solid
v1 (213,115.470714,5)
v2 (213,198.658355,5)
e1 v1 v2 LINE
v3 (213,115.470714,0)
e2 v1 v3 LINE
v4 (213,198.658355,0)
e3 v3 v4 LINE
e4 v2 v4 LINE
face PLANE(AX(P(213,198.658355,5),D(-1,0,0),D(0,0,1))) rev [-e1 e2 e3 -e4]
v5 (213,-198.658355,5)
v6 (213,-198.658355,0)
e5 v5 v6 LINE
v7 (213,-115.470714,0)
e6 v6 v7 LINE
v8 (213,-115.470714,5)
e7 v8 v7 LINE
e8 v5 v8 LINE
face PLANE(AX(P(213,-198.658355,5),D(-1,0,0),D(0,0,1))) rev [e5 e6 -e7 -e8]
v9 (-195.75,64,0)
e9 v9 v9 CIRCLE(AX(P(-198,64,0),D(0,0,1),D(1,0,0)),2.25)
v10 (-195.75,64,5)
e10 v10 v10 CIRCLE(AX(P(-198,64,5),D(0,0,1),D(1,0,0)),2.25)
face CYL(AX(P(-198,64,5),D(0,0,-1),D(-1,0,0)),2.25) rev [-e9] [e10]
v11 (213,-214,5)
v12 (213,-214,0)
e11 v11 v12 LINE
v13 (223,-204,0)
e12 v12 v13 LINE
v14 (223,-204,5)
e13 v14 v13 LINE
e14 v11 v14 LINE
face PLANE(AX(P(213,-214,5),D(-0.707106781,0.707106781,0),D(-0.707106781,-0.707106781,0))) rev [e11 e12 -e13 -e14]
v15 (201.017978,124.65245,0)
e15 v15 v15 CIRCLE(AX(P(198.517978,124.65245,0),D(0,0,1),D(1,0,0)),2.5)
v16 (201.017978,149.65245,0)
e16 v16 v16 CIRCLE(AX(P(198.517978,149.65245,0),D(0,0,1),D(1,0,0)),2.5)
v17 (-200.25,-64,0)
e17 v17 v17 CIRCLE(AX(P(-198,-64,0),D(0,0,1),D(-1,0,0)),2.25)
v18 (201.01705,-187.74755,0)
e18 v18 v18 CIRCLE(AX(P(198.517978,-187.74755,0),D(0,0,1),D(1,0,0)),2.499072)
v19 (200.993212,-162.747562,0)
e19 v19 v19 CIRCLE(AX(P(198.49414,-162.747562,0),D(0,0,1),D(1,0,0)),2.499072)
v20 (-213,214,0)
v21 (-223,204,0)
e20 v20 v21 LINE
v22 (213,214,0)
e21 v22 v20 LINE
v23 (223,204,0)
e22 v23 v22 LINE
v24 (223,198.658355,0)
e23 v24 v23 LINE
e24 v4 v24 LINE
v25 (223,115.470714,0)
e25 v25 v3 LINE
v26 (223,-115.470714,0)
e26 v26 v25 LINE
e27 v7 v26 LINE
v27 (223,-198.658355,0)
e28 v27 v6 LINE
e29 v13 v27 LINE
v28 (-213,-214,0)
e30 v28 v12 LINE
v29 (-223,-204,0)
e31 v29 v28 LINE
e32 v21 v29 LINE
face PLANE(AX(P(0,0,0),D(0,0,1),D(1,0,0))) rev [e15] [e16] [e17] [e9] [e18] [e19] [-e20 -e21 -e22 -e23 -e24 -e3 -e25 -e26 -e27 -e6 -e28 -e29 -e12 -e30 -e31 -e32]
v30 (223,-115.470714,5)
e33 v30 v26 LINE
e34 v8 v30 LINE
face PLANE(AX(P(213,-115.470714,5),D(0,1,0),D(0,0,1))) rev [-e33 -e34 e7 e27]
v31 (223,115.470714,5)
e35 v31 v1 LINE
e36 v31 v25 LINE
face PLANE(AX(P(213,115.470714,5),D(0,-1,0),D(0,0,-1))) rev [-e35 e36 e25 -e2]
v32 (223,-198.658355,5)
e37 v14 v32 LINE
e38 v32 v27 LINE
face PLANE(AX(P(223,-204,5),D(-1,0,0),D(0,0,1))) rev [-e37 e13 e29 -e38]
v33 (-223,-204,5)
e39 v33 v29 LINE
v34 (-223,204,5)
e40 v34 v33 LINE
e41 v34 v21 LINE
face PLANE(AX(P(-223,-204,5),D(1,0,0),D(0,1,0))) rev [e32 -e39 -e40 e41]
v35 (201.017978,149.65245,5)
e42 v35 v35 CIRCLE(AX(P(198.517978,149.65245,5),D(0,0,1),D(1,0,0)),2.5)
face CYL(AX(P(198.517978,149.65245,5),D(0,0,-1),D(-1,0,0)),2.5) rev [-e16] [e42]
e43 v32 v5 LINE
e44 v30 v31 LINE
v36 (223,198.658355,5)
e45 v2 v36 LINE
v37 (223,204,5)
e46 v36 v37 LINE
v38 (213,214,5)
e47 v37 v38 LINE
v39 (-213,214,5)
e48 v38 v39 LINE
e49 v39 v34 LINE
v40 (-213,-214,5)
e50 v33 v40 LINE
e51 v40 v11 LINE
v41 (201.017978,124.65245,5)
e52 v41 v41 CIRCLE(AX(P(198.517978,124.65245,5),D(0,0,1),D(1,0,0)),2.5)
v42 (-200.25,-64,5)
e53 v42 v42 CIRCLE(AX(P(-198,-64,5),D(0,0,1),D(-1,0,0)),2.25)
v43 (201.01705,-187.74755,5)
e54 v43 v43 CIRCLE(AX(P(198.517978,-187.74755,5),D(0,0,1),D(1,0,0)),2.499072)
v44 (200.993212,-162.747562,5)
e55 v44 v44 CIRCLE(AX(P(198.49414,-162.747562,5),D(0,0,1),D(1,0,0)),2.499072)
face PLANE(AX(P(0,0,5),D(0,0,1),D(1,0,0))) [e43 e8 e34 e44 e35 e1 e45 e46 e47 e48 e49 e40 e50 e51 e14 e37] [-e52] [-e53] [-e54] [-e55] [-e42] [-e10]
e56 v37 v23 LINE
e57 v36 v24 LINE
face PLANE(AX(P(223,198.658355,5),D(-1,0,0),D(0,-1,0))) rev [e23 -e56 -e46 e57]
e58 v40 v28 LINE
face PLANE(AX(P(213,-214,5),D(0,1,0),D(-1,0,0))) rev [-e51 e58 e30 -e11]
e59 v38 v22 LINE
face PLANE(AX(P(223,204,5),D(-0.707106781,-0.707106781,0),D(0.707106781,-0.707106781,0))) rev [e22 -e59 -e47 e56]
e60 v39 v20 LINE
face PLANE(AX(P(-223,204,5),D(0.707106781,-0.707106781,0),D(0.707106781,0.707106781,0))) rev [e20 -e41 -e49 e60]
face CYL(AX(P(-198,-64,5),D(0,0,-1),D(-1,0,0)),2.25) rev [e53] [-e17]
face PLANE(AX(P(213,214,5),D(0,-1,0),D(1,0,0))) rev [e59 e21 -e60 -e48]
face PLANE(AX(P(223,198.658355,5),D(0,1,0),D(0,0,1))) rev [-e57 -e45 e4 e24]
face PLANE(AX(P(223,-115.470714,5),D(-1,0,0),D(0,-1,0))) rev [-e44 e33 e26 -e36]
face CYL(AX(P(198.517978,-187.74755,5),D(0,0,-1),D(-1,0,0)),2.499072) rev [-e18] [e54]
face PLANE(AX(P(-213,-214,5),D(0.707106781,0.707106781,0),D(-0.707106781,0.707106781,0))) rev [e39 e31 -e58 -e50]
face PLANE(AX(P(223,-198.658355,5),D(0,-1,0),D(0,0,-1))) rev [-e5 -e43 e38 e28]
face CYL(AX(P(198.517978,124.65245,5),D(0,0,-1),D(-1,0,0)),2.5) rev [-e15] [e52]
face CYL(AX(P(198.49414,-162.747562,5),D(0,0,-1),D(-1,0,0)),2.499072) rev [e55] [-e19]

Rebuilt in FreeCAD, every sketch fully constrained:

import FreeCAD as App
import Part
import Sketcher
Q = App.Units.Quantity


def add_polygon(sketch, points):
    """Adds a closed chain of lines whose ends are joined by coincident constraints."""
    first, n = sketch.GeometryCount, len(points)
    for a, b in zip(points, points[1:] + points[:1]):
        sketch.addGeometry(Part.LineSegment(App.Vector(*a, 0), App.Vector(*b, 0)), False)
    for i in range(n):
        sketch.addConstraint(Sketcher.Constraint("Coincident", first + i, 2, first + (i + 1) % n, 1))

doc = App.newDocument("Part")
body = doc.addObject("PartDesign::Body", "Body")

# Sketch on XY plane
sketch1 = body.newObject("Sketcher::SketchObject", "Sketch")
sketch1.AttachmentSupport = (doc.getObject("XY_Plane"), [""])
sketch1.MapMode = "FlatFace"
add_polygon(sketch1, [(-213, 214), (-223, 204), (-223, -204), (-213, -214), (213, -214), (223, -204), (223, -198.7), (213, -198.7), (213, -115.5), (223, -115.5), (223, 115.5), (213, 115.5), (213, 198.7), (223, 198.7), (223, 204), (213, 214)])  # lines 0-15
sketch1.addGeometry(Part.Circle(App.Vector(198.5, -187.7, 0), App.Vector(0, 0, 1), 2.5), False)  # 16
sketch1.addGeometry(Part.Circle(App.Vector(198.5, -162.7, 0), App.Vector(0, 0, 1), 2.5), False)  # 17
sketch1.addGeometry(Part.Circle(App.Vector(-198, -64, 0), App.Vector(0, 0, 1), 2.2), False)  # 18
sketch1.addGeometry(Part.Circle(App.Vector(198.5, 124.7, 0), App.Vector(0, 0, 1), 2.5), False)  # 19
sketch1.addGeometry(Part.Circle(App.Vector(198.5, 149.7, 0), App.Vector(0, 0, 1), 2.5), False)  # 20
sketch1.addGeometry(Part.Circle(App.Vector(-198, 64, 0), App.Vector(0, 0, 1), 2.2), False)  # 21
sketch1.addConstraint([
    Sketcher.Constraint("Vertical", 1),
    Sketcher.Constraint("Horizontal", 3),
    Sketcher.Constraint("Vertical", 5),
    Sketcher.Constraint("Horizontal", 6),
    Sketcher.Constraint("Vertical", 7),
    Sketcher.Constraint("Horizontal", 8),
    Sketcher.Constraint("Vertical", 9),
    Sketcher.Constraint("Horizontal", 10),
    Sketcher.Constraint("Vertical", 11),
    Sketcher.Constraint("Horizontal", 12),
    Sketcher.Constraint("Vertical", 13),
    Sketcher.Constraint("Horizontal", 15),
    Sketcher.Constraint("Equal", 16, 17),
    Sketcher.Constraint("Equal", 19, 20),
    Sketcher.Constraint("Equal", 18, 21),
    Sketcher.Constraint("Symmetric", 0, 2, 4, 2, -1, 1),
    Sketcher.Constraint("Symmetric", 1, 2, 13, 2, -1, 1),
    Sketcher.Constraint("Symmetric", 2, 2, 14, 2, -1, 1),
    Sketcher.Constraint("Symmetric", 18, 3, 21, 3, -1),
    Sketcher.Constraint("Symmetric", 7, 2, 10, 2, -1),
    Sketcher.Constraint("Perpendicular", 0, 2),
    Sketcher.Constraint("Perpendicular", 2, 4),
    Sketcher.Constraint("Horizontal", 1, 2, 4, 2),
    Sketcher.Constraint("Vertical", 16, 3, 19, 3),
    Sketcher.Constraint("Vertical", 19, 3, 20, 3),
    Sketcher.Constraint("Vertical", 3, 2, 6, 2),
    Sketcher.Constraint("Vertical", 5, 2, 8, 2),
    Sketcher.Constraint("Vertical", 11, 2, 14, 2),
    Sketcher.Constraint("Equal", 7, 11),
    Sketcher.Constraint("Diameter", 19, Q("5 mm")),
    Sketcher.Constraint("Diameter", 18, Q("4.5 mm")),
    Sketcher.Constraint("DistanceX", 3, 1, 3, 2, Q("426 mm")),
    Sketcher.Constraint("DistanceX", 6, 2, 6, 1, Q("10 mm")),
    Sketcher.Constraint("DistanceY", 1, 2, 1, 1, Q("408 mm")),
    Sketcher.Constraint("DistanceX", 18, 3, -1, 1, Q("198 mm")),
    Sketcher.Constraint("DistanceY", 18, 3, -1, 1, Q("64 mm")),
    Sketcher.Constraint("DistanceY", 19, 3, 20, 3, Q("25 mm")),
    Sketcher.Constraint("DistanceY", 16, 3, 19, 3, Q("312.4 mm")),
    Sketcher.Constraint("Diameter", 16, Q("4.998144 mm")),
    Sketcher.Constraint("DistanceY", 7, 1, 7, 2, Q("83.187641 mm")),
    Sketcher.Constraint("DistanceY", 9, 1, 9, 2, Q("230.941429 mm")),
    Sketcher.Constraint("DistanceX", -1, 1, 16, 3, Q("198.517978 mm")),
    Sketcher.Constraint("DistanceY", 16, 3, -1, 1, Q("187.74755 mm")),
    Sketcher.Constraint("DistanceX", -1, 1, 17, 3, Q("198.49414 mm")),
    Sketcher.Constraint("DistanceY", 17, 3, -1, 1, Q("162.747562 mm")),
])
pad1 = body.newObject("PartDesign::Pad", "Pad")
pad1.Profile = sketch1
pad1.Length = 5

doc.recompute()
